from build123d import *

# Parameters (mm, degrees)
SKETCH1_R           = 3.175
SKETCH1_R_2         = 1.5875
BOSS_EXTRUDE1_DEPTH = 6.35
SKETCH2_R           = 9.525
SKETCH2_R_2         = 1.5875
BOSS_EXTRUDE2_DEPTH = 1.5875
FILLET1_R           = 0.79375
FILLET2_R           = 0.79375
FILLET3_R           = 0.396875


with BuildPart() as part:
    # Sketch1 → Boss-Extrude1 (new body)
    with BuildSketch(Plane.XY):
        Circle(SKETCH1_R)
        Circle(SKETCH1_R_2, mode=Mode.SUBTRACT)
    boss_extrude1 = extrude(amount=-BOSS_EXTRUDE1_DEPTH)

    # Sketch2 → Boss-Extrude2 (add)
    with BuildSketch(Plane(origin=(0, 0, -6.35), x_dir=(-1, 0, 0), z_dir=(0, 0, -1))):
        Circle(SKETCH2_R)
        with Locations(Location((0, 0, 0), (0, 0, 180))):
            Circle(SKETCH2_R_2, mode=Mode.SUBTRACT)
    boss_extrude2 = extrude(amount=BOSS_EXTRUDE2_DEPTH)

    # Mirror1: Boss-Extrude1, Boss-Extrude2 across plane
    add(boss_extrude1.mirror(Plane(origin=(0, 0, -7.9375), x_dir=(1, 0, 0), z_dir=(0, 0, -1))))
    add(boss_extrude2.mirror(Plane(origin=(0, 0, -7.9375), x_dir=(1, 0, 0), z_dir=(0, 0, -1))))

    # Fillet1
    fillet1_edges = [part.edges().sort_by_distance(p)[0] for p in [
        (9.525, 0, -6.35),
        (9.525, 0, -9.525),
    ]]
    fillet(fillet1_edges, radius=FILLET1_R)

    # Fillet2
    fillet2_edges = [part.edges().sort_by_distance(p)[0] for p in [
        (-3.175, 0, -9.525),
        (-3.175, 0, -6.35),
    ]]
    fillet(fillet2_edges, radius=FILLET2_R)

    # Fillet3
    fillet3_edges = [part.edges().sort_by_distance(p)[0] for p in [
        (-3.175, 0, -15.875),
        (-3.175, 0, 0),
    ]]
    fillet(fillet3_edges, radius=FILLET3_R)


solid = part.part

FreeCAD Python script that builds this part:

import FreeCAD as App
import Part
import Sketcher

V = App.Vector
Q = App.Units.Quantity


def edges_at(feature, points):
    """Names of the edges that pass closest to the given points."""
    edges = feature.Shape.Edges
    near = lambda p: min(range(len(edges)), key=lambda i: edges[i].distToShape(Part.Vertex(*p))[0])
    return sorted({f"Edge{near(p) + 1}" for p in points})

doc = App.newDocument("Part")
body = doc.addObject("PartDesign::Body", "Body")

# Sketch on XY plane
sketch1 = body.newObject("Sketcher::SketchObject", "Sketch")
sketch1.AttachmentSupport = (doc.getObject("XY_Plane"), [""])
sketch1.MapMode = "FlatFace"
sketch1.addGeometry([
    Part.Circle(V(0, 0, 0), V(0, 0, 1), 3.2),
    Part.Circle(V(0, 0, 0), V(0, 0, 1), 1.6),
], False)
sketch1.addConstraint([
    Sketcher.Constraint("Coincident", 0, 3, -1, 1),
    Sketcher.Constraint("Coincident", 1, 3, -1, 1),
    Sketcher.Constraint("Diameter", 0, Q("0.25 in")),
    Sketcher.Constraint("Diameter", 1, Q("0.125 in")),
])
pad1 = body.newObject("PartDesign::Pad", "Pad")
pad1.Profile = sketch1
pad1.Length = Q("0.25 in")
pad1.Reversed = True

# Sketch on XY plane
sketch2 = body.newObject("Sketcher::SketchObject", "Sketch001")
sketch2.AttachmentSupport = (doc.getObject("XY_Plane"), [""])
sketch2.MapMode = "FlatFace"
sketch2.AttachmentOffset = App.Placement(V(0, 0, -0.25 * 25.4), App.Rotation())
sketch2.addGeometry([
    Part.Circle(V(0, 0, 0), V(0, 0, 1), 9.5),
    Part.Circle(V(0, 0, 0), V(0, 0, 1), 1.6),
], False)
sketch2.addConstraint([
    Sketcher.Constraint("Coincident", 0, 3, -1, 1),
    Sketcher.Constraint("Coincident", 1, 3, -1, 1),
    Sketcher.Constraint("Diameter", 0, Q("0.75 in")),
    Sketcher.Constraint("Diameter", 1, Q("0.125 in")),
])
pad2 = body.newObject("PartDesign::Pad", "Pad001")
pad2.Profile = sketch2
pad2.Length = Q("0.0625 in")
pad2.Reversed = True
doc.recompute()

datumplane = body.newObject("PartDesign::Plane", "DatumPlane")
datumplane.AttachmentSupport = (doc.getObject("XY_Plane"), [""])
datumplane.MapMode = "FlatFace"
datumplane.AttachmentOffset = App.Placement(V(0, 0, -0.3125 * 25.4), App.Rotation())
mirrored = body.newObject("PartDesign::Mirrored", "Mirrored")
mirrored.Originals = [pad1, pad2]
mirrored.MirrorPlane = (datumplane, [""])
body.Tip = mirrored
doc.recompute()

fillet = body.newObject("PartDesign::Fillet", "Fillet")
fillet.Base = (mirrored, edges_at(mirrored, [(9.525, 0, -6.35), (9.525, 0, -9.525)]))
fillet.Radius = Q("0.03125 in")
doc.recompute()

fillet2 = body.newObject("PartDesign::Fillet", "Fillet001")
fillet2.Base = (fillet, edges_at(fillet, [(-3.175, 0, -9.525), (-3.175, 0, -6.35)]))
fillet2.Radius = Q("0.03125 in")
doc.recompute()

fillet3 = body.newObject("PartDesign::Fillet", "Fillet002")
fillet3.Base = (fillet2, edges_at(fillet2, [(-3.175, 0, -15.875), (-3.175, 0, 0)]))
fillet3.Radius = Q("0.015625 in")

doc.recompute()
